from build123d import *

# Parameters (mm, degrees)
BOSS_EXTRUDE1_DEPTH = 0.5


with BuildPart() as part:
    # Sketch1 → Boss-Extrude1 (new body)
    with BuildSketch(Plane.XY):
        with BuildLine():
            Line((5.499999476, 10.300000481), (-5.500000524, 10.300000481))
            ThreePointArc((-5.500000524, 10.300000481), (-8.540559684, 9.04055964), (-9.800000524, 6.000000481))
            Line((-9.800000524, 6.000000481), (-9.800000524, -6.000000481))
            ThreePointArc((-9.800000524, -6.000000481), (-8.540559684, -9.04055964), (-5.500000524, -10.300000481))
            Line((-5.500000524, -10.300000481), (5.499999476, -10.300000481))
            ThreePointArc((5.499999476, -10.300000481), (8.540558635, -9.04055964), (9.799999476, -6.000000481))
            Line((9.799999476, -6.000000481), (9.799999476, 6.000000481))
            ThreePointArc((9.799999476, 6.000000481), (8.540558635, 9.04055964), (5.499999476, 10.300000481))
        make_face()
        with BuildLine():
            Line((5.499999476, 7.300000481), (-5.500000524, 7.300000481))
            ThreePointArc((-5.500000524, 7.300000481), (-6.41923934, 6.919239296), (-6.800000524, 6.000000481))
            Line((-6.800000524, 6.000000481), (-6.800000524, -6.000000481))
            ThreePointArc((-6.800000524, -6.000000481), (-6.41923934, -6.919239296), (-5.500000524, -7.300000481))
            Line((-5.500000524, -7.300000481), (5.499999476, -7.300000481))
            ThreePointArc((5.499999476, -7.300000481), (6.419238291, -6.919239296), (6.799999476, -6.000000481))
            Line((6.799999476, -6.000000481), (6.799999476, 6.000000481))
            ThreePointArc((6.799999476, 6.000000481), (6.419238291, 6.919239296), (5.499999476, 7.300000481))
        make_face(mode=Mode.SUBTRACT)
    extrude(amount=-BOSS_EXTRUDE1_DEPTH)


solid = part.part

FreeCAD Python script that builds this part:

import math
import FreeCAD as App
import Part
import Sketcher
Q = App.Units.Quantity

doc = App.newDocument("Part")
params = doc.addObject("Spreadsheet::Sheet", "Params")
for row, (alias, value) in enumerate([
    ("sketch1_radius", "4.3 mm"),
    ("sketch1_radius2", "1.3 mm"),
    ("sketch1_width", "11 mm"),
    ("sketch1_height", "12.000001 mm"),
    ("pad1_length", "0.5 mm"),
], start=1):
    params.set(f"A{row}", alias)
    params.set(f"B{row}", "=" + value)
    params.setAlias(f"B{row}", alias)

body = doc.addObject("PartDesign::Body", "Body")

# Sketch on XY plane
sketch1 = body.newObject("Sketcher::SketchObject", "Sketch")
sketch1.AttachmentSupport = (doc.getObject("XY_Plane"), [""])
sketch1.MapMode = "FlatFace"
sketch1.addGeometry([
    Part.LineSegment(App.Vector(5.5, 10.3, 0), App.Vector(-5.5, 10.3, 0)),  # 0
    Part.ArcOfCircle(Part.Circle(App.Vector(-5.5, 6, 0), App.Vector(0, 0, 1), 4.3), math.radians(90), math.radians(180)),  # 1
    Part.LineSegment(App.Vector(-9.8, 6, 0), App.Vector(-9.8, -6, 0)),  # 2
    Part.ArcOfCircle(Part.Circle(App.Vector(-5.5, -6, 0), App.Vector(0, 0, 1), 4.3), math.radians(180), math.radians(270)),  # 3
    Part.LineSegment(App.Vector(-5.5, -10.3, 0), App.Vector(5.5, -10.3, 0)),  # 4
    Part.ArcOfCircle(Part.Circle(App.Vector(5.5, -6, 0), App.Vector(0, 0, 1), 4.3), math.radians(-90), math.radians(0)),  # 5
    Part.LineSegment(App.Vector(9.8, -6, 0), App.Vector(9.8, 6, 0)),  # 6
    Part.ArcOfCircle(Part.Circle(App.Vector(5.5, 6, 0), App.Vector(0, 0, 1), 4.3), math.radians(0), math.radians(90)),  # 7
    Part.LineSegment(App.Vector(-5.5, 7.3, 0), App.Vector(5.5, 7.3, 0)),  # 8
    Part.ArcOfCircle(Part.Circle(App.Vector(5.5, 6, 0), App.Vector(0, 0, 1), 1.3), math.radians(0), math.radians(90)),  # 9
    Part.LineSegment(App.Vector(6.8, 6, 0), App.Vector(6.8, -6, 0)),  # 10
    Part.ArcOfCircle(Part.Circle(App.Vector(5.5, -6, 0), App.Vector(0, 0, 1), 1.3), math.radians(-90), math.radians(0)),  # 11
    Part.LineSegment(App.Vector(5.5, -7.3, 0), App.Vector(-5.5, -7.3, 0)),  # 12
    Part.ArcOfCircle(Part.Circle(App.Vector(-5.5, -6, 0), App.Vector(0, 0, 1), 1.3), math.radians(180), math.radians(270)),  # 13
    Part.LineSegment(App.Vector(-6.8, -6, 0), App.Vector(-6.8, 6, 0)),  # 14
    Part.ArcOfCircle(Part.Circle(App.Vector(-5.5, 6, 0), App.Vector(0, 0, 1), 1.3), math.radians(90), math.radians(180)),  # 15
], False)
sketch1.addConstraint([
    Sketcher.Constraint("Tangent", 0, 2, 1, 1),
    Sketcher.Constraint("Tangent", 1, 2, 2, 1),
    Sketcher.Constraint("Tangent", 2, 2, 3, 1),
    Sketcher.Constraint("Tangent", 3, 2, 4, 1),
    Sketcher.Constraint("Tangent", 4, 2, 5, 1),
    Sketcher.Constraint("Tangent", 5, 2, 6, 1),
    Sketcher.Constraint("Tangent", 6, 2, 7, 1),
    Sketcher.Constraint("Tangent", 7, 2, 0, 1),
    Sketcher.Constraint("Tangent", 8, 2, 9, 2),
    Sketcher.Constraint("Tangent", 9, 1, 10, 1),
    Sketcher.Constraint("Tangent", 10, 2, 11, 2),
    Sketcher.Constraint("Tangent", 11, 1, 12, 1),
    Sketcher.Constraint("Tangent", 12, 2, 13, 2),
    Sketcher.Constraint("Tangent", 13, 1, 14, 1),
    Sketcher.Constraint("Tangent", 14, 2, 15, 2),
    Sketcher.Constraint("Tangent", 15, 1, 8, 1),
    Sketcher.Constraint("Horizontal", 0),
    Sketcher.Constraint("Vertical", 2),
    Sketcher.Constraint("Horizontal", 4),
    Sketcher.Constraint("Vertical", 6),
    Sketcher.Constraint("Horizontal", 8),
    Sketcher.Constraint("Vertical", 10),
    Sketcher.Constraint("Horizontal", 12),
    Sketcher.Constraint("Vertical", 14),
    Sketcher.Constraint("Coincident", 9, 3, 7, 3),
    Sketcher.Constraint("Coincident", 11, 3, 5, 3),
    Sketcher.Constraint("Coincident", 13, 3, 3, 3),
    Sketcher.Constraint("Equal", 1, 3),
    Sketcher.Constraint("Equal", 3, 5),
    Sketcher.Constraint("Equal", 5, 7),
    Sketcher.Constraint("Equal", 13, 15),
    Sketcher.Constraint("Symmetric", 1, 3, 5, 3, -1, 1),
    Sketcher.Constraint("Radius", 1, Q("4.3 mm")),
    Sketcher.Constraint("Radius", 9, Q("1.3 mm")),
    Sketcher.Constraint("DistanceX", 0, 2, 0, 1, Q("11 mm")),
    Sketcher.Constraint("DistanceY", 2, 2, 2, 1, Q("12.000001 mm")),
])
sketch1.setExpression("Constraints[32]", "Params.sketch1_radius")
sketch1.setExpression("Constraints[33]", "Params.sketch1_radius2")
sketch1.setExpression("Constraints[34]", "Params.sketch1_width")
sketch1.setExpression("Constraints[35]", "Params.sketch1_height")
pad1 = body.newObject("PartDesign::Pad", "Pad")
pad1.Profile = sketch1
pad1.setExpression("Length", "Params.pad1_length")
pad1.Reversed = True

doc.recompute()
